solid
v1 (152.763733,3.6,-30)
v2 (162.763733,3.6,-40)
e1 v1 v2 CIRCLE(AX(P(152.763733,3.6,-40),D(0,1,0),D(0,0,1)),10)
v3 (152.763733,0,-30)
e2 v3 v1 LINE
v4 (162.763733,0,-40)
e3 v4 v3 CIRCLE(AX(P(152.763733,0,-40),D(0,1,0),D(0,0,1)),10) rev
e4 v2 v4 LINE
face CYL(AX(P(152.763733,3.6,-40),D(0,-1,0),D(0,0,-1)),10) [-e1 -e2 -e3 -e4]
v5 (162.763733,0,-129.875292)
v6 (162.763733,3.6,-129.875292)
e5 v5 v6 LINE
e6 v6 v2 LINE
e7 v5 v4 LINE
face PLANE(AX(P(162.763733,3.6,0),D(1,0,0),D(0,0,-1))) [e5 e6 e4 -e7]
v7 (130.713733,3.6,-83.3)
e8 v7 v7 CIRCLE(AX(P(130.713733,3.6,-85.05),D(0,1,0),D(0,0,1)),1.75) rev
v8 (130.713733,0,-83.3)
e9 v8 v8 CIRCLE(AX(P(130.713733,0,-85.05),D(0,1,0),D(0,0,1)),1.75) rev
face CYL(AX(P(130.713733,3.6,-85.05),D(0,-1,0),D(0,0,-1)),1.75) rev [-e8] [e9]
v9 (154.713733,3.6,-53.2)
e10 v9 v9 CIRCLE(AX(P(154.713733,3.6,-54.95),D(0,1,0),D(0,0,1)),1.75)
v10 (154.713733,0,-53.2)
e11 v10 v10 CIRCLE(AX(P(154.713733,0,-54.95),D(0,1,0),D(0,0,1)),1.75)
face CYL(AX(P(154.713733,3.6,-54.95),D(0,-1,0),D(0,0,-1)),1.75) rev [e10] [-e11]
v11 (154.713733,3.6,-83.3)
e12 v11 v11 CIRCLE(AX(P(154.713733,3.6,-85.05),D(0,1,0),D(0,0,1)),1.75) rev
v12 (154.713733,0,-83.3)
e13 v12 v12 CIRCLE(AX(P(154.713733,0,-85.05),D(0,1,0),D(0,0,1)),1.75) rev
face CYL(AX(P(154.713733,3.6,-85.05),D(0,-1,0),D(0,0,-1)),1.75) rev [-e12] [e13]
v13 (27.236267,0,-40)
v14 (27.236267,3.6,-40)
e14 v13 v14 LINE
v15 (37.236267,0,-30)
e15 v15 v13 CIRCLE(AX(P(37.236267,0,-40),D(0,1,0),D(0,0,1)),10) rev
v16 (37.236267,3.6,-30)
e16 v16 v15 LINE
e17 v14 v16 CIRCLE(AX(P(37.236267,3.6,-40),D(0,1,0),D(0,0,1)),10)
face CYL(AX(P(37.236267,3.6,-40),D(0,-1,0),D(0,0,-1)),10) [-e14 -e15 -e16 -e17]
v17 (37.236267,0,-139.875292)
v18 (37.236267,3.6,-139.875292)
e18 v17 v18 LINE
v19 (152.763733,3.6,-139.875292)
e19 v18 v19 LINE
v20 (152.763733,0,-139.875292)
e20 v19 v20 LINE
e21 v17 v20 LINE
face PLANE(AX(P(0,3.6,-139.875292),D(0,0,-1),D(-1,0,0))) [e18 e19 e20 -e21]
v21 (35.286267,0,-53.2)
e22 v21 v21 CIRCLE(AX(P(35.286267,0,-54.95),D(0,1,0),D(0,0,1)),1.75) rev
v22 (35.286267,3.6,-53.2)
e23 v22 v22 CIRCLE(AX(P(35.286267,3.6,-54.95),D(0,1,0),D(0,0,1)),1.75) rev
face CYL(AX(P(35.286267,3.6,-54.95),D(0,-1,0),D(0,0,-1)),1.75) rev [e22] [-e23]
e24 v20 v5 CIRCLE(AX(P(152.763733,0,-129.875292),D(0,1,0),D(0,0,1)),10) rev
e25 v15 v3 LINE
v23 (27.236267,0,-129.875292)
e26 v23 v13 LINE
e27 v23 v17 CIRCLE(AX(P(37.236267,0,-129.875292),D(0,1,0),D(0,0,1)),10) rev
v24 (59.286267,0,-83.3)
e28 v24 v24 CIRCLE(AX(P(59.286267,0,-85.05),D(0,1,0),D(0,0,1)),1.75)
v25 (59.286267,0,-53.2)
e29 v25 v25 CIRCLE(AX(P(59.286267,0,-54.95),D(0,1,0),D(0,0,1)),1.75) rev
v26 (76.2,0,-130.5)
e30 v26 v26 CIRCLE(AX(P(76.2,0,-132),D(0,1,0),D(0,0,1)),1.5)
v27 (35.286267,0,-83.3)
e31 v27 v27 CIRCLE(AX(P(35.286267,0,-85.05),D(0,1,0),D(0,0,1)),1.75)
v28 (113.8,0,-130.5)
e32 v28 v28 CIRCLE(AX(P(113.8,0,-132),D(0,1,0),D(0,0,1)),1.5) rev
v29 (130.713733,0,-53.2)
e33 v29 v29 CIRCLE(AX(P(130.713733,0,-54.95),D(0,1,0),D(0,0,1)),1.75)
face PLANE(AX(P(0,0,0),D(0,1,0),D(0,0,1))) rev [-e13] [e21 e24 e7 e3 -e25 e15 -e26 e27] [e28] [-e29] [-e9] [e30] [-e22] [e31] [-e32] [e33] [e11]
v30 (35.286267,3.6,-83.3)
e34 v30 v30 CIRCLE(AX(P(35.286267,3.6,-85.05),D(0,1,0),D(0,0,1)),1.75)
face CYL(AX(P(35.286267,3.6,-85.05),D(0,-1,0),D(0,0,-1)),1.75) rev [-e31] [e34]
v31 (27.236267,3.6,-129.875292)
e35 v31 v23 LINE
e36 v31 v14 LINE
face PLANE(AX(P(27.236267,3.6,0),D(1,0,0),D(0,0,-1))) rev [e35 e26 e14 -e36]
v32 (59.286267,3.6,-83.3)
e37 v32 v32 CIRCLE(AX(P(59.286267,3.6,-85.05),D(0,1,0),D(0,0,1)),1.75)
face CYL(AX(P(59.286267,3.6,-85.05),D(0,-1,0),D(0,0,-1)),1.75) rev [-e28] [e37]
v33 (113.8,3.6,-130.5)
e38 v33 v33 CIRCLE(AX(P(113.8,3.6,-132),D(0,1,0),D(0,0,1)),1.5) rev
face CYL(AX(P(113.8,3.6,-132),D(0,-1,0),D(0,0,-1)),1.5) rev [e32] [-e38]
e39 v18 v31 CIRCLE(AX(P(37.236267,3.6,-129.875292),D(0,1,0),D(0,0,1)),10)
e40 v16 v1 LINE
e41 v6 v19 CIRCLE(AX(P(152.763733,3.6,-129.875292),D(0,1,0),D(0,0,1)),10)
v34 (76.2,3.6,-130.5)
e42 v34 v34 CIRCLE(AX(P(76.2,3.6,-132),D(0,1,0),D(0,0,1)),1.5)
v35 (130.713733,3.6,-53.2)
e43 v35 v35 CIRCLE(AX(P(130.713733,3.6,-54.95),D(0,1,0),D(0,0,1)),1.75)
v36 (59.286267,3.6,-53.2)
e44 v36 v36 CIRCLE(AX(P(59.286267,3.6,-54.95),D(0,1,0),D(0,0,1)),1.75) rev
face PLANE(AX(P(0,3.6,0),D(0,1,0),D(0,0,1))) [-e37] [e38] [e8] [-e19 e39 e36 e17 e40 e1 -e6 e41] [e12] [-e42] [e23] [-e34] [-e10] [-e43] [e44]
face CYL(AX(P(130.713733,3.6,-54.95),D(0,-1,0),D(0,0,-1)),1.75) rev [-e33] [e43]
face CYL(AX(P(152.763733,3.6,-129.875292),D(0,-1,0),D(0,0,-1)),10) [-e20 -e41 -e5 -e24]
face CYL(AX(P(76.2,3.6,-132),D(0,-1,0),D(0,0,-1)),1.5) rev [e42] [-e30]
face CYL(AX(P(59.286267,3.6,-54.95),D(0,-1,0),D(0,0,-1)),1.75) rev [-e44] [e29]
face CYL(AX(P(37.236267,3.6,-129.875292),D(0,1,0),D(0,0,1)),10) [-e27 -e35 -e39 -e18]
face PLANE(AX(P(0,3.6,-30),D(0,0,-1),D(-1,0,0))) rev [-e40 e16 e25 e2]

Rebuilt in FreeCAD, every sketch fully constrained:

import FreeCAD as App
import Part
import Sketcher
from FreeCAD import Vector


def edges_at(feature, points):
    """Names of the edges that pass closest to the given points."""
    edges = feature.Shape.Edges
    near = lambda p: min(range(len(edges)), key=lambda i: edges[i].distToShape(Part.Vertex(*p))[0])
    return sorted({f"Edge{near(p) + 1}" for p in points})

doc = App.newDocument("Part")
body = doc.addObject("PartDesign::Body", "Body")

# Sketch on XZ plane
sketch1 = doc.addObject("Sketcher::SketchObject", "Sketch")
body.addObject(sketch1)
sketch1.AttachmentSupport = (doc.XZ_Plane, [""])
sketch1.MapMode = "FlatFace"
sketch1.addGeometry([
    Part.LineSegment(Vector(27.2, -139.9, 0), Vector(27.2, -30, 0)),  # 0
    Part.LineSegment(Vector(27.2, -30, 0), Vector(162.8, -30, 0)),  # 1
    Part.LineSegment(Vector(162.8, -30, 0), Vector(162.8, -139.9, 0)),  # 2
    Part.LineSegment(Vector(162.8, -139.9, 0), Vector(27.2, -139.9, 0)),  # 3
    Part.Circle(Vector(35.3, -55, 0), Vector(0, 0, 1), 1.8),  # 4
    Part.Circle(Vector(59.3, -55, 0), Vector(0, 0, 1), 1.8),  # 5
    Part.Circle(Vector(35.3, -85, 0), Vector(0, 0, 1), 1.8),  # 6
    Part.Circle(Vector(59.3, -85, 0), Vector(0, 0, 1), 1.8),  # 7
    Part.Circle(Vector(130.7, -55, 0), Vector(0, 0, 1), 1.8),  # 8
    Part.Circle(Vector(154.7, -55, 0), Vector(0, 0, 1), 1.8),  # 9
    Part.Circle(Vector(130.7, -85, 0), Vector(0, 0, 1), 1.8),  # 10
    Part.Circle(Vector(154.7, -85, 0), Vector(0, 0, 1), 1.8),  # 11
    Part.Circle(Vector(76.2, -132, 0), Vector(0, 0, 1), 1.5),  # 12
    Part.Circle(Vector(113.8, -132, 0), Vector(0, 0, 1), 1.5),  # 13
], False)
sketch1.addConstraint([
    Sketcher.Constraint("Coincident", 0, 2, 1, 1),
    Sketcher.Constraint("Coincident", 1, 2, 2, 1),
    Sketcher.Constraint("Coincident", 2, 2, 3, 1),
    Sketcher.Constraint("Coincident", 3, 2, 0, 1),
    Sketcher.Constraint("Vertical", 0),
    Sketcher.Constraint("Horizontal", 1),
    Sketcher.Constraint("Vertical", 2),
    Sketcher.Constraint("Horizontal", 3),
    Sketcher.Constraint("Equal", 4, 5),
    Sketcher.Constraint("Equal", 5, 6),
    Sketcher.Constraint("Equal", 6, 7),
    Sketcher.Constraint("Equal", 7, 8),
    Sketcher.Constraint("Equal", 8, 9),
    Sketcher.Constraint("Equal", 9, 10),
    Sketcher.Constraint("Equal", 10, 11),
    Sketcher.Constraint("Equal", 12, 13),
    Sketcher.Constraint("Horizontal", 4, 3, 5, 3),
    Sketcher.Constraint("Horizontal", 6, 3, 7, 3),
    Sketcher.Constraint("Horizontal", 5, 3, 8, 3),
    Sketcher.Constraint("Horizontal", 8, 3, 9, 3),
    Sketcher.Constraint("Horizontal", 7, 3, 10, 3),
    Sketcher.Constraint("Horizontal", 10, 3, 11, 3),
    Sketcher.Constraint("Horizontal", 12, 3, 13, 3),
    Sketcher.Constraint("Vertical", 4, 3, 6, 3),
    Sketcher.Constraint("Vertical", 5, 3, 7, 3),
    Sketcher.Constraint("Vertical", 8, 3, 10, 3),
    Sketcher.Constraint("Vertical", 9, 3, 11, 3),
    Sketcher.Constraint("Diameter", 12, 3.0),
    Sketcher.Constraint("Diameter", 4, 3.5),
    Sketcher.Constraint("DistanceY", 12, 3, -1, 1, 132.0),
    Sketcher.Constraint("DistanceY", 0, 2, -1, 1, 30.0),
    Sketcher.Constraint("DistanceX", 4, 3, 5, 3, 24.0),
    Sketcher.Constraint("DistanceX", 8, 3, 9, 3, 24.0),
    Sketcher.Constraint("DistanceX", -1, 1, 12, 3, 76.2),
    Sketcher.Constraint("DistanceX", -1, 1, 13, 3, 113.8),
    Sketcher.Constraint("DistanceY", 6, 3, 4, 3, 30.1),
    Sketcher.Constraint("DistanceY", 4, 3, -1, 1, 54.95),
    Sketcher.Constraint("DistanceX", 0, 2, 4, 3, 8.05),
    Sketcher.Constraint("DistanceX", 9, 3, 1, 2, 8.05),
    Sketcher.Constraint("DistanceY", 0, 1, 0, 2, 109.875292),
    Sketcher.Constraint("DistanceX", 1, 1, 1, 2, 135.527465),
    Sketcher.Constraint("DistanceX", -1, 1, 4, 3, 35.286267),
])
pad1 = doc.addObject("PartDesign::Pad", "Pad")
body.addObject(pad1)
pad1.Profile = sketch1
pad1.Length = 3.6
pad1.Reversed = True
doc.recompute()

fillet = doc.addObject("PartDesign::Fillet", "Fillet")
body.addObject(fillet)
fillet.Base = (pad1, edges_at(pad1, [(27.236, 1.8, -30)]))
fillet.Radius = 10
doc.recompute()

fillet2 = doc.addObject("PartDesign::Fillet", "Fillet001")
body.addObject(fillet2)
fillet2.Base = (fillet, edges_at(fillet, [(27.236, 1.8, -139.875)]))
fillet2.Radius = 10
doc.recompute()

fillet3 = doc.addObject("PartDesign::Fillet", "Fillet002")
body.addObject(fillet3)
fillet3.Base = (fillet2, edges_at(fillet2, [(162.764, 1.8, -139.875)]))
fillet3.Radius = 10
doc.recompute()

fillet4 = doc.addObject("PartDesign::Fillet", "Fillet003")
body.addObject(fillet4)
fillet4.Base = (fillet3, edges_at(fillet3, [(162.764, 1.8, -30)]))
fillet4.Radius = 10

doc.recompute()
